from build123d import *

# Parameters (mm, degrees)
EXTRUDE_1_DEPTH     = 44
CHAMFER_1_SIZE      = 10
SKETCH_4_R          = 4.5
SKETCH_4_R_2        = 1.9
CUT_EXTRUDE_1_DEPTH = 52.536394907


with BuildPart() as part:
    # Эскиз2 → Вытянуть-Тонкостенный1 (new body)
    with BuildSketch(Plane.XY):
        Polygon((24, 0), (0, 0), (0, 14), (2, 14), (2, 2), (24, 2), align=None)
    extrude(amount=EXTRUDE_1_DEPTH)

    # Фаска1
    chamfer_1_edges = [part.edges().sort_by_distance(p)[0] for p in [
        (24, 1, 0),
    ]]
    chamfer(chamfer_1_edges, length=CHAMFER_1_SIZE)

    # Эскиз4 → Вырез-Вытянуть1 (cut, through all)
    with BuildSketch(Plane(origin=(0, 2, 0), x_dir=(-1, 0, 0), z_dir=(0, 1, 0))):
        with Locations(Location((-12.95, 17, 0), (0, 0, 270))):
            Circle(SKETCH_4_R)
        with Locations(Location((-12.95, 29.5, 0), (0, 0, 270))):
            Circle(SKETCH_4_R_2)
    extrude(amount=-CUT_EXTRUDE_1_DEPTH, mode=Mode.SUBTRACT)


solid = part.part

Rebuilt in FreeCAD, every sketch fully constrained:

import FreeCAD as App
import Part
import Sketcher


def edges_at(feature, points):
    """Names of the edges that pass closest to the given points."""
    edges = feature.Shape.Edges
    near = lambda p: min(range(len(edges)), key=lambda i: edges[i].distToShape(Part.Vertex(*p))[0])
    return sorted({f"Edge{near(p) + 1}" for p in points})

doc = App.newDocument("Part")
body = doc.addObject("PartDesign::Body", "Body")

sketch1 = doc.addObject("Sketcher::SketchObject", "Sketch")
body.addObject(sketch1)
sketch1.AttachmentSupport = (doc.XY_Plane, [""])
sketch1.MapMode = "FlatFace"
sketch1.addGeometry([
    Part.LineSegment(App.Vector(0, 0, 0), App.Vector(24, 0, 0)),
    Part.LineSegment(App.Vector(24, 0, 0), App.Vector(24, 2, 0)),
    Part.LineSegment(App.Vector(24, 2, 0), App.Vector(2, 2, 0)),
    Part.LineSegment(App.Vector(2, 2, 0), App.Vector(2, 14, 0)),
    Part.LineSegment(App.Vector(2, 14, 0), App.Vector(0, 14, 0)),
    Part.LineSegment(App.Vector(0, 14, 0), App.Vector(0, 0, 0)),
], False)
sketch1.addConstraint([
    Sketcher.Constraint("Coincident", 0, 2, 1, 1),
    Sketcher.Constraint("Coincident", 1, 2, 2, 1),
    Sketcher.Constraint("Coincident", 2, 2, 3, 1),
    Sketcher.Constraint("Coincident", 3, 2, 4, 1),
    Sketcher.Constraint("Coincident", 4, 2, 5, 1),
    Sketcher.Constraint("Coincident", 5, 2, 0, 1),
    Sketcher.Constraint("Horizontal", 0),
    Sketcher.Constraint("Vertical", 1),
    Sketcher.Constraint("Horizontal", 2),
    Sketcher.Constraint("Vertical", 3),
    Sketcher.Constraint("Horizontal", 4),
    Sketcher.Constraint("Vertical", 5),
    Sketcher.Constraint("Coincident", 5, 2, -1, 1),
    Sketcher.Constraint("Equal", 4, 1),
    Sketcher.Constraint("DistanceX", 0, 1, 0, 2, 24.0),
    Sketcher.Constraint("DistanceX", 2, 2, 2, 1, 22.0),
    Sketcher.Constraint("DistanceY", 3, 1, 3, 2, 12.0),
])
pad1 = doc.addObject("PartDesign::Pad", "Pad")
body.addObject(pad1)
pad1.Profile = sketch1
pad1.Length = 44
doc.recompute()

chamfer = doc.addObject("PartDesign::Chamfer", "Chamfer")
body.addObject(chamfer)
chamfer.Base = (pad1, edges_at(pad1, [(24, 1, 0)]))
chamfer.Size = 10

sketch2 = doc.addObject("Sketcher::SketchObject", "Sketch001")
body.addObject(sketch2)
sketch2.AttachmentSupport = (doc.XZ_Plane, [""])
sketch2.MapMode = "FlatFace"
sketch2.AttachmentOffset = App.Placement(App.Vector(0, 0, -2), App.Rotation())
sketch2.addGeometry([
    Part.Circle(App.Vector(12.9, 17, 0), App.Vector(0, 0, 1), 4.5),
    Part.Circle(App.Vector(12.9, 29.5, 0), App.Vector(0, 0, 1), 1.9),
], False)
sketch2.addConstraint([
    Sketcher.Constraint("Vertical", 0, 3, 1, 3),
    Sketcher.Constraint("Diameter", 0, 9.0),
    Sketcher.Constraint("Diameter", 1, 3.8),
    Sketcher.Constraint("DistanceY", -1, 1, 0, 3, 17.0),
    Sketcher.Constraint("DistanceY", -1, 1, 1, 3, 29.5),
    Sketcher.Constraint("DistanceX", -1, 1, 0, 3, 12.95),
])
pocket1 = doc.addObject("PartDesign::Pocket", "Pocket")
body.addObject(pocket1)
pocket1.Profile = sketch2
pocket1.Type = "ThroughAll"
pocket1.Reversed = True

doc.recompute()
